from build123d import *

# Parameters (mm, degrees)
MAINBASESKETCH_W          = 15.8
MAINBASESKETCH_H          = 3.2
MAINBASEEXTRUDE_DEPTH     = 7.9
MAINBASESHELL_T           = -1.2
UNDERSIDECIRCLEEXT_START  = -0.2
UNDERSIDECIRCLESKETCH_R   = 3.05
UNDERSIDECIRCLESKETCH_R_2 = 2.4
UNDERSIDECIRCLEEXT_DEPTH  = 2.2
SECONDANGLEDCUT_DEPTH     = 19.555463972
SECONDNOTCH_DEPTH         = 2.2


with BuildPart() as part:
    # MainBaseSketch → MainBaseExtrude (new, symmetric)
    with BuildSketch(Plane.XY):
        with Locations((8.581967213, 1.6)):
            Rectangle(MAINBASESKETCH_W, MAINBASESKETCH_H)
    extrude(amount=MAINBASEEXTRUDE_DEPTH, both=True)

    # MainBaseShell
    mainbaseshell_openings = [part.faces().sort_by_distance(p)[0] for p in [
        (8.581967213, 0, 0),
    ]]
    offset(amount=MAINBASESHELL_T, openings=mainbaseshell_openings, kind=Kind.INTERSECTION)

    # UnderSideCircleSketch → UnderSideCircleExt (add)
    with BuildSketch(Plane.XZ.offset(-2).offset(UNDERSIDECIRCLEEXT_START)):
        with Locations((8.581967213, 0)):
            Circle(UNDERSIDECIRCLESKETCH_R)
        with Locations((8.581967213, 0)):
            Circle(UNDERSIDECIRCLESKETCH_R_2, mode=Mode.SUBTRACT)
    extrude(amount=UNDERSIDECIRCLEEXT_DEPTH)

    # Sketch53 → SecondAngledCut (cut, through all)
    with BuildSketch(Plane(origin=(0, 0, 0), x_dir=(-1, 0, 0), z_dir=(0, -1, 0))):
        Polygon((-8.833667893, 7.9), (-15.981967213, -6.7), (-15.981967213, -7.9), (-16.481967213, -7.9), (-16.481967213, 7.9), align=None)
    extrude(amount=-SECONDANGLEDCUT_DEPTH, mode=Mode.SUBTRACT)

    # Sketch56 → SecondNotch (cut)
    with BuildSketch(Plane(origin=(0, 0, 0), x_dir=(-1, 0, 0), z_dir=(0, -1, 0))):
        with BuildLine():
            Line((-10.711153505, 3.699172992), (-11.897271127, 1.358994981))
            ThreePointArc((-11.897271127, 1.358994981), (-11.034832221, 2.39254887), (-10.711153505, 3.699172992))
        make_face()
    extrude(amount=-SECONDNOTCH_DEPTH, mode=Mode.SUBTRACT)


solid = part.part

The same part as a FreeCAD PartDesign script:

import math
import FreeCAD as App
import Part
import Sketcher
Q = App.Units.Quantity


def faces_at(feature, points):
    """Names of the faces that lie closest to the given points."""
    faces = feature.Shape.Faces
    near = lambda p: min(range(len(faces)), key=lambda i: faces[i].distToShape(Part.Vertex(*p))[0])
    return sorted({f"Face{near(p) + 1}" for p in points})

doc = App.newDocument("Part")
body = doc.addObject("PartDesign::Body", "Body")

# Sketch on XY plane
sketch1 = body.newObject("Sketcher::SketchObject", "Sketch")
sketch1.AttachmentSupport = (doc.getObject("XY_Plane"), [""])
sketch1.MapMode = "FlatFace"
sketch1.addGeometry([
    Part.LineSegment(App.Vector(0.7, 3.2, 0), App.Vector(0.7, 0, 0)),
    Part.LineSegment(App.Vector(0.7, 0, 0), App.Vector(16.5, 0, 0)),
    Part.LineSegment(App.Vector(16.5, 0, 0), App.Vector(16.5, 3.2, 0)),
    Part.LineSegment(App.Vector(16.5, 3.2, 0), App.Vector(0.7, 3.2, 0)),
], False)
sketch1.addConstraint([
    Sketcher.Constraint("Coincident", 0, 2, 1, 1),
    Sketcher.Constraint("Coincident", 1, 2, 2, 1),
    Sketcher.Constraint("Coincident", 2, 2, 3, 1),
    Sketcher.Constraint("Coincident", 3, 2, 0, 1),
    Sketcher.Constraint("Vertical", 0),
    Sketcher.Constraint("Horizontal", 1),
    Sketcher.Constraint("Vertical", 2),
    Sketcher.Constraint("Horizontal", 3),
    Sketcher.Constraint("PointOnObject", 0, 2, -1),
    Sketcher.Constraint("DistanceX", 1, 1, 1, 2, Q("15.8 mm")),
    Sketcher.Constraint("DistanceY", 0, 2, 0, 1, Q("3.2 mm")),
    Sketcher.Constraint("DistanceX", -1, 1, 0, 2, Q("0.681967 mm")),
])
pad1 = body.newObject("PartDesign::Pad", "Pad")
pad1.Profile = sketch1
pad1.Length = 15.8
pad1.Midplane = True
doc.recompute()

thickness = body.newObject("PartDesign::Thickness", "Thickness")
thickness.Base = (pad1, faces_at(pad1, [(8.582, 0, 0)]))
thickness.Value = 1.2
thickness.Reversed = True
thickness.Join = "Intersection"

# Sketch on XZ plane
sketch2 = body.newObject("Sketcher::SketchObject", "Sketch001")
sketch2.AttachmentSupport = (doc.getObject("XZ_Plane"), [""])
sketch2.MapMode = "FlatFace"
sketch2.AttachmentOffset = App.Placement(App.Vector(0, 0, -2.2), App.Rotation())
sketch2.addGeometry([
    Part.Circle(App.Vector(8.6, 0, 0), App.Vector(0, 0, 1), 3),
    Part.Circle(App.Vector(8.6, 0, 0), App.Vector(0, 0, 1), 2.4),
], False)
sketch2.addConstraint([
    Sketcher.Constraint("Coincident", 1, 3, 0, 3),
    Sketcher.Constraint("PointOnObject", 0, 3, -1),
    Sketcher.Constraint("Diameter", 0, Q("6.1 mm")),
    Sketcher.Constraint("Diameter", 1, Q("4.8 mm")),
    Sketcher.Constraint("DistanceX", -1, 1, 0, 3, Q("8.581967 mm")),
])
pad2 = body.newObject("PartDesign::Pad", "Pad001")
pad2.Profile = sketch2
pad2.Length = 2.2

# Sketch on XZ plane
sketch3 = body.newObject("Sketcher::SketchObject", "Sketch002")
sketch3.AttachmentSupport = (doc.getObject("XZ_Plane"), [""])
sketch3.MapMode = "FlatFace"
sketch3.addGeometry([
    Part.LineSegment(App.Vector(16, 6.7, 0), App.Vector(8.8, -7.9, 0)),  # 0
    Part.LineSegment(App.Vector(8.8, -7.9, 0), App.Vector(16.5, -7.9, 0)),  # 1
    Part.LineSegment(App.Vector(16.5, -7.9, 0), App.Vector(16.5, 7.9, 0)),  # 2
    Part.LineSegment(App.Vector(16.5, 7.9, 0), App.Vector(16, 7.9, 0)),  # 3
    Part.LineSegment(App.Vector(16, 7.9, 0), App.Vector(16, 6.7, 0)),  # 4
], False)
sketch3.addConstraint([
    Sketcher.Constraint("Coincident", 0, 2, 1, 1),
    Sketcher.Constraint("Coincident", 1, 2, 2, 1),
    Sketcher.Constraint("Coincident", 2, 2, 3, 1),
    Sketcher.Constraint("Coincident", 3, 2, 4, 1),
    Sketcher.Constraint("Coincident", 4, 2, 0, 1),
    Sketcher.Constraint("Horizontal", 1),
    Sketcher.Constraint("Vertical", 2),
    Sketcher.Constraint("Horizontal", 3),
    Sketcher.Constraint("Vertical", 4),
    Sketcher.Constraint("DistanceX", 3, 2, 3, 1, Q("0.5 mm")),
    Sketcher.Constraint("DistanceY", 2, 1, 2, 2, Q("15.8 mm")),
    Sketcher.Constraint("DistanceY", 4, 2, 4, 1, Q("1.2 mm")),
    Sketcher.Constraint("DistanceY", 0, 2, -1, 1, Q("7.9 mm")),
    Sketcher.Constraint("DistanceX", 1, 1, 1, 2, Q("7.648299 mm")),
    Sketcher.Constraint("DistanceX", -1, 1, 0, 2, Q("8.833668 mm")),
])
pocket1 = body.newObject("PartDesign::Pocket", "Pocket")
pocket1.Profile = sketch3
pocket1.Type = "ThroughAll"

# Sketch on XZ plane
sketch4 = body.newObject("Sketcher::SketchObject", "Sketch003")
sketch4.AttachmentSupport = (doc.getObject("XZ_Plane"), [""])
sketch4.MapMode = "FlatFace"
sketch4.addGeometry([
    Part.LineSegment(App.Vector(10.7, -3.7, 0), App.Vector(11.9, -1.4, 0)),
    Part.ArcOfCircle(Part.Circle(App.Vector(13.7, -3.7, 0), App.Vector(0, 0, 1), 3), math.radians(127), math.radians(179)),
], False)
sketch4.addConstraint([
    Sketcher.Constraint("Coincident", 0, 1, 1, 2),
    Sketcher.Constraint("Coincident", 1, 1, 0, 2),
    Sketcher.Constraint("Radius", 1, Q("3 mm")),
    Sketcher.Constraint("DistanceX", -1, 1, 1, 1, Q("11.897271 mm")),
    Sketcher.Constraint("DistanceX", 0, 1, 1, 3, Q("2.999589 mm")),
    Sketcher.Constraint("DistanceY", 0, 1, 1, 1, Q("2.340178 mm")),
    Sketcher.Constraint("DistanceY", 1, 3, -1, 1, Q("3.748832 mm")),
])
pocket2 = body.newObject("PartDesign::Pocket", "Pocket001")
pocket2.Profile = sketch4
pocket2.Length = 2.2

doc.recompute()
